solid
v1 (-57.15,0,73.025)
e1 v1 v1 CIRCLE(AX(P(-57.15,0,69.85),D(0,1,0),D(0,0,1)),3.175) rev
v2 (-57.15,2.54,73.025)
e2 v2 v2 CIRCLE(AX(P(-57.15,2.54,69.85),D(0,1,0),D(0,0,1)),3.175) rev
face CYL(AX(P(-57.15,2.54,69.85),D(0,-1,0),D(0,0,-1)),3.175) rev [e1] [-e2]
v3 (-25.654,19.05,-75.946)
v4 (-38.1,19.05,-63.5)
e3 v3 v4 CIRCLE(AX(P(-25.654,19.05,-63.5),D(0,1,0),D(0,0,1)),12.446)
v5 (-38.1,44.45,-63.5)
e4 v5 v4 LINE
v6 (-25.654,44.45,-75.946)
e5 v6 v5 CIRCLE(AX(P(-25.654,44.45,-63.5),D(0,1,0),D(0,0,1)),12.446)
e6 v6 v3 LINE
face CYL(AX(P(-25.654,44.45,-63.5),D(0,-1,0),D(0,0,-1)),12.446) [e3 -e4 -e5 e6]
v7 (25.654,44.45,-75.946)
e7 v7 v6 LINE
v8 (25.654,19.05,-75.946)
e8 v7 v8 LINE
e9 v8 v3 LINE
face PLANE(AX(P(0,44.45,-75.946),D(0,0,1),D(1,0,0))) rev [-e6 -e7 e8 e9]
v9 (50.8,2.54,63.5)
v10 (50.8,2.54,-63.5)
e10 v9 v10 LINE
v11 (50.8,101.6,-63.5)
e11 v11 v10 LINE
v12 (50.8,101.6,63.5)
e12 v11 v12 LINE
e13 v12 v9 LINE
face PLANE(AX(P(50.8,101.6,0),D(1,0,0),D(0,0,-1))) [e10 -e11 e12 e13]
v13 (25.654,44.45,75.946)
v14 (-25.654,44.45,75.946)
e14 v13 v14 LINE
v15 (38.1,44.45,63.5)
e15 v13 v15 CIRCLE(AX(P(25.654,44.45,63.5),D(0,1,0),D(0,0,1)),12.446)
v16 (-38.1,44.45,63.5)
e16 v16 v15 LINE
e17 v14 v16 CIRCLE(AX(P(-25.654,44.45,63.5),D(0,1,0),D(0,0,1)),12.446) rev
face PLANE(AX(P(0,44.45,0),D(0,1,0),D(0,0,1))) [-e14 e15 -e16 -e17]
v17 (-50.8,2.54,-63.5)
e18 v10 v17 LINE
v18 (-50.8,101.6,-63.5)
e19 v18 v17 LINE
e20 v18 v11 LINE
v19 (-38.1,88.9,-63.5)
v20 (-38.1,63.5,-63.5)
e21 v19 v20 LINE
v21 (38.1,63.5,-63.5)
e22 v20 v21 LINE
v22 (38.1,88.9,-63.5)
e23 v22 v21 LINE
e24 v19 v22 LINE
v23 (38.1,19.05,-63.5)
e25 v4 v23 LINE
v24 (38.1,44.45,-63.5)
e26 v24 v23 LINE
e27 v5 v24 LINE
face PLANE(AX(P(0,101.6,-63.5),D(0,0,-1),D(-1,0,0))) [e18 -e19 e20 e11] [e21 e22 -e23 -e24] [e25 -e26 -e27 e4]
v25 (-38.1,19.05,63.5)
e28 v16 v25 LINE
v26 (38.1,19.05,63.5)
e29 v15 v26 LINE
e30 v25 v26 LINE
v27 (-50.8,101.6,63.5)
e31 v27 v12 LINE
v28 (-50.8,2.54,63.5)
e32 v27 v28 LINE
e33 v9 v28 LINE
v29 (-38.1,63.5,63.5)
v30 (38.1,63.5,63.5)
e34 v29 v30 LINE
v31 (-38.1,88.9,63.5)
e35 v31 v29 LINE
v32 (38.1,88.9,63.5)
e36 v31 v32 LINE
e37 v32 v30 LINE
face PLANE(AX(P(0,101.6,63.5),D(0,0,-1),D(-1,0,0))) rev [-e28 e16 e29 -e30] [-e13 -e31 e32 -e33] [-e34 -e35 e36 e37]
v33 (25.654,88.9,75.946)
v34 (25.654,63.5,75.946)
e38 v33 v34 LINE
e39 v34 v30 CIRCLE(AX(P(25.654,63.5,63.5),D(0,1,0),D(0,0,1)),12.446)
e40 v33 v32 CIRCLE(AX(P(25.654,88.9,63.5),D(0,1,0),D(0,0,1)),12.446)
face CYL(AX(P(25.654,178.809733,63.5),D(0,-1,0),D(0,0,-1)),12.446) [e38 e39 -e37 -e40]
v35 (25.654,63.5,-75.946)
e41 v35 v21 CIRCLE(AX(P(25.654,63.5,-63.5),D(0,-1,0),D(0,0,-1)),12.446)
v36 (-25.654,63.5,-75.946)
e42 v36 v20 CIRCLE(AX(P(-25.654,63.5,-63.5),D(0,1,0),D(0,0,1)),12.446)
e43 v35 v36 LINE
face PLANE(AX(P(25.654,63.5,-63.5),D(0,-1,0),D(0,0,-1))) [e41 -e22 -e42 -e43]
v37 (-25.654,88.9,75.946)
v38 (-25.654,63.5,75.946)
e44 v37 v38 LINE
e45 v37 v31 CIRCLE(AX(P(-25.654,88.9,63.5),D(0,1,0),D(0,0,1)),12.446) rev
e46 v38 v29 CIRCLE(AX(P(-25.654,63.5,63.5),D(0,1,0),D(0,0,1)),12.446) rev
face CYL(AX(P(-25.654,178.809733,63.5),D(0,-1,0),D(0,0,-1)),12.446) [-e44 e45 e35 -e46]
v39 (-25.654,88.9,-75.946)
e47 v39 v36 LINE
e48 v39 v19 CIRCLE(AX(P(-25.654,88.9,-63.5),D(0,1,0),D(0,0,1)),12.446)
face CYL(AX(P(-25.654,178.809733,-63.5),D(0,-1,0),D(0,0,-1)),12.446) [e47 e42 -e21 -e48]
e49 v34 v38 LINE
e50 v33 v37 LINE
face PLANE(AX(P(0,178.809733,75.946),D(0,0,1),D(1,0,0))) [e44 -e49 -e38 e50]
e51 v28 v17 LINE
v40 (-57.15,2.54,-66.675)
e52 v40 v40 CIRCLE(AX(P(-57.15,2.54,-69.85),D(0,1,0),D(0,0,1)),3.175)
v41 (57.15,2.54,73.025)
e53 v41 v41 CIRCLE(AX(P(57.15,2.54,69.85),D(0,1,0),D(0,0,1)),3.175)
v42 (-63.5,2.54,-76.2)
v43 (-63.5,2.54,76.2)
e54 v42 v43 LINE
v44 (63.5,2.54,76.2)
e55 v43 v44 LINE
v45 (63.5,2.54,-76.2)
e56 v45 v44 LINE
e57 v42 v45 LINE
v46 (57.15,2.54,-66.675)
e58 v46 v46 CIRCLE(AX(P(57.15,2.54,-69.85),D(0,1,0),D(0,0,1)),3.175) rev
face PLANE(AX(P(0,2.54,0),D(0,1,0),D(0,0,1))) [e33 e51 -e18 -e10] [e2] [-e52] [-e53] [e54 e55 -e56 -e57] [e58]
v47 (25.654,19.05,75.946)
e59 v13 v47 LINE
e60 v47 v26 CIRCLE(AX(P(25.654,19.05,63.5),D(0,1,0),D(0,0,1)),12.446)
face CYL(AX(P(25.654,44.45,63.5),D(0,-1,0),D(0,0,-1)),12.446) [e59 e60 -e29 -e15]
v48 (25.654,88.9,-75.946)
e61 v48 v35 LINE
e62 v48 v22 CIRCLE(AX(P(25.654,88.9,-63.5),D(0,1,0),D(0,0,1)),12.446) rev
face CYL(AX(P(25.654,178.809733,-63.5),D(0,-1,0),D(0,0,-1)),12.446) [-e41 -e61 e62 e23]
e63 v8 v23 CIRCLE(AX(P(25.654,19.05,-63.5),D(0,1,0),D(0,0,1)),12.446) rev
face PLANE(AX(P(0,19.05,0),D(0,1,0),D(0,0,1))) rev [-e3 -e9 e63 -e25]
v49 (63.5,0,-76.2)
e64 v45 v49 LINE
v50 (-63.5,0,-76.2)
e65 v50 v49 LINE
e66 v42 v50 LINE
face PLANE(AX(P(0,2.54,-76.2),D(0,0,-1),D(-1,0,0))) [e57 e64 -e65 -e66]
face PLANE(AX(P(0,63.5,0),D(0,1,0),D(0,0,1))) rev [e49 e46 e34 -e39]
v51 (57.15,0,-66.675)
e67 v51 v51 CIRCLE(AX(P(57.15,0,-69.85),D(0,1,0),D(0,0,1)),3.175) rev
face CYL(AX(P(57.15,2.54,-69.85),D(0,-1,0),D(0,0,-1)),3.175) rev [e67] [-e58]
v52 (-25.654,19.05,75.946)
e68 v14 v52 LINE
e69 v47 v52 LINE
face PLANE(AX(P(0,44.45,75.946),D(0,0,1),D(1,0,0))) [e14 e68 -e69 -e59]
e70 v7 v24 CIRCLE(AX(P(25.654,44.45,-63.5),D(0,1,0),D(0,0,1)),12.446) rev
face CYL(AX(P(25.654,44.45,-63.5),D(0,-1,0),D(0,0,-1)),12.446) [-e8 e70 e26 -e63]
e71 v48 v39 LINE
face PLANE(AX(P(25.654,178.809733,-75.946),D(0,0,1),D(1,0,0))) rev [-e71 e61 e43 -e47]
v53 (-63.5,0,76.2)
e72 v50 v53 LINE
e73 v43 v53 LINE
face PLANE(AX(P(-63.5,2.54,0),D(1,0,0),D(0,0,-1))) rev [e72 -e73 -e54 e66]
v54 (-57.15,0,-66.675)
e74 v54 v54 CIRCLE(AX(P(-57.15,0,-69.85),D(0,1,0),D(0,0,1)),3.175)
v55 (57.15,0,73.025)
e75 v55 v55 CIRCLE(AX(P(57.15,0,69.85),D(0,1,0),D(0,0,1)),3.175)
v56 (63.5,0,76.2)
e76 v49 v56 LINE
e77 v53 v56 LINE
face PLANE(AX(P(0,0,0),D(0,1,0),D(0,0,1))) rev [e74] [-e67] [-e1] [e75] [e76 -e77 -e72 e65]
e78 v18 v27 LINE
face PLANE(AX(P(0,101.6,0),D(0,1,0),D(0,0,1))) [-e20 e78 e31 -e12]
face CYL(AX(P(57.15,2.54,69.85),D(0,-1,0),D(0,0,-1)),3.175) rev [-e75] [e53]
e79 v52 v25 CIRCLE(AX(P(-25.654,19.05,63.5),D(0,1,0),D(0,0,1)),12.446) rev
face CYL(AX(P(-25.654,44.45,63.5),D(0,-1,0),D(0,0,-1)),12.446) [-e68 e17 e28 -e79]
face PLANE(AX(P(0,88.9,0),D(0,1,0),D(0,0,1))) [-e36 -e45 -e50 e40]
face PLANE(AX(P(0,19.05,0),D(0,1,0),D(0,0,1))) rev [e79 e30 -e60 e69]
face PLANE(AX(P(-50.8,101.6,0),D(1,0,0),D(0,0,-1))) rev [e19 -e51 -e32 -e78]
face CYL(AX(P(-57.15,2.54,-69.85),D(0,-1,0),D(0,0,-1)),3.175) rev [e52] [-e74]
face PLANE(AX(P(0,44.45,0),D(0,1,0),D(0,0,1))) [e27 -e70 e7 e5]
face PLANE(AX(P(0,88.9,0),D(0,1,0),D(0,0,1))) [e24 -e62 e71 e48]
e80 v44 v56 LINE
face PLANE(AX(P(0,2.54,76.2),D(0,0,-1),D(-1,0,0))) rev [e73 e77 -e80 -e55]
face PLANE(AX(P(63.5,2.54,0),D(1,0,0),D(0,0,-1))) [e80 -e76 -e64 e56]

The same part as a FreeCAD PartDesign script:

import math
import FreeCAD as App
import Part
import Sketcher

V = App.Vector
Q = App.Units.Quantity


def add_polygon(sketch, points):
    """Adds a closed chain of lines whose ends are joined by coincident constraints."""
    first, n = sketch.GeometryCount, len(points)
    for a, b in zip(points, points[1:] + points[:1]):
        sketch.addGeometry(Part.LineSegment(App.Vector(*a, 0), App.Vector(*b, 0)), False)
    for i in range(n):
        sketch.addConstraint(Sketcher.Constraint("Coincident", first + i, 2, first + (i + 1) % n, 1))

doc = App.newDocument("Part")
body = doc.addObject("PartDesign::Body", "Body")

# Sketch on XZ plane
sketch1 = body.newObject("Sketcher::SketchObject", "Sketch")
sketch1.AttachmentSupport = (doc.getObject("XZ_Plane"), [""])
sketch1.MapMode = "FlatFace"
add_polygon(sketch1, [(-63.5, -76.2), (-63.5, 76.2), (63.5, 76.2), (63.5, -76.2)])  # lines 0-3
sketch1.addGeometry(Part.Circle(V(-57.1, 69.8, 0), V(0, 0, 1), 3.2), False)  # 4
sketch1.addGeometry(Part.Circle(V(57.1, 69.8, 0), V(0, 0, 1), 3.2), False)  # 5
sketch1.addGeometry(Part.Circle(V(-57.1, -69.8, 0), V(0, 0, 1), 3.2), False)  # 6
sketch1.addGeometry(Part.Circle(V(57.1, -69.8, 0), V(0, 0, 1), 3.2), False)  # 7
sketch1.addConstraint(Sketcher.Constraint("Vertical", 0))
sketch1.addConstraint(Sketcher.Constraint("Horizontal", 1))
sketch1.addConstraint(Sketcher.Constraint("Vertical", 2))
sketch1.addConstraint(Sketcher.Constraint("Horizontal", 3))
sketch1.addConstraint(Sketcher.Constraint("Equal", 4, 5))
sketch1.addConstraint(Sketcher.Constraint("Equal", 5, 6))
sketch1.addConstraint(Sketcher.Constraint("Equal", 6, 7))
sketch1.addConstraint(Sketcher.Constraint("Symmetric", 5, 3, 6, 3, -1, 1))
sketch1.addConstraint(Sketcher.Constraint("Symmetric", 4, 3, 7, 3, -1, 1))
sketch1.addConstraint(Sketcher.Constraint("Symmetric", 0, 2, 2, 2, -1, 1))
sketch1.addConstraint(Sketcher.Constraint("Symmetric", 4, 3, 5, 3, -2))
sketch1.addConstraint(Sketcher.Constraint("Diameter", 4, Q("0.25 in")))
sketch1.addConstraint(Sketcher.Constraint("DistanceX", 1, 1, 1, 2, Q("5 in")))
sketch1.addConstraint(Sketcher.Constraint("DistanceY", 0, 1, 0, 2, Q("6 in")))
sketch1.addConstraint(Sketcher.Constraint("DistanceX", 4, 3, 5, 3, Q("4.5 in")))
sketch1.addConstraint(Sketcher.Constraint("DistanceY", 6, 3, 4, 3, Q("5.5 in")))
pad1 = body.newObject("PartDesign::Pad", "Pad")
pad1.Profile = sketch1
pad1.Length = Q("0.1 in")
pad1.Reversed = True

# Sketch on XZ plane
sketch2 = body.newObject("Sketcher::SketchObject", "Sketch001")
sketch2.AttachmentSupport = (doc.getObject("XZ_Plane"), [""])
sketch2.MapMode = "FlatFace"
add_polygon(sketch2, [(-51, -64), (-51, 64), (51, 64), (51, -64)])  # lines 0-3
sketch2.addConstraint(Sketcher.Constraint("Vertical", 0))
sketch2.addConstraint(Sketcher.Constraint("Horizontal", 1))
sketch2.addConstraint(Sketcher.Constraint("Vertical", 2))
sketch2.addConstraint(Sketcher.Constraint("Horizontal", 3))
sketch2.addConstraint(Sketcher.Constraint("Symmetric", 0, 2, 2, 2, -1, 1))
sketch2.addConstraint(Sketcher.Constraint("DistanceX", 1, 1, 1, 2, Q("4 in")))
sketch2.addConstraint(Sketcher.Constraint("DistanceY", 0, 1, 0, 2, Q("5 in")))
pad2 = body.newObject("PartDesign::Pad", "Pad001")
pad2.Profile = sketch2
pad2.Length = Q("4 in")
pad2.Reversed = True

# Sketch on XZ plane
sketch3 = body.newObject("Sketcher::SketchObject", "Sketch002")
sketch3.AttachmentSupport = (doc.getObject("XZ_Plane"), [""])
sketch3.MapMode = "FlatFace"
sketch3.AttachmentOffset = App.Placement(V(0, 0, -2.5 * 25.4), App.Rotation())
sketch3.addGeometry(Part.LineSegment(V(38, 64, 0), V(-38, 64, 0)), False)
sketch3.addGeometry(Part.ArcOfCircle(Part.Circle(V(-26, 64, 0), V(0, 0, 1), 12), math.radians(90), math.radians(180)), False)
sketch3.addGeometry(Part.LineSegment(V(-26, 76, 0), V(26, 76, 0)), False)
sketch3.addGeometry(Part.ArcOfCircle(Part.Circle(V(26, 64, 0), V(0, 0, 1), 12), math.radians(0), math.radians(90)), False)
sketch3.addGeometry(Part.LineSegment(V(26, -76, 0), V(-26, -76, 0)), False)
sketch3.addGeometry(Part.ArcOfCircle(Part.Circle(V(-26, -64, 0), V(0, 0, 1), 12), math.radians(180), math.radians(270)), False)
sketch3.addGeometry(Part.LineSegment(V(-38, -64, 0), V(38, -64, 0)), False)
sketch3.addGeometry(Part.ArcOfCircle(Part.Circle(V(26, -64, 0), V(0, 0, 1), 12), math.radians(-90), math.radians(0)), False)
sketch3.addConstraint(Sketcher.Constraint("Coincident", 0, 2, 1, 2))
sketch3.addConstraint(Sketcher.Constraint("Tangent", 1, 1, 2, 1))
sketch3.addConstraint(Sketcher.Constraint("Tangent", 2, 2, 3, 2))
sketch3.addConstraint(Sketcher.Constraint("Coincident", 3, 1, 0, 1))
sketch3.addConstraint(Sketcher.Constraint("Tangent", 4, 2, 5, 2))
sketch3.addConstraint(Sketcher.Constraint("Coincident", 5, 1, 6, 1))
sketch3.addConstraint(Sketcher.Constraint("Coincident", 6, 2, 7, 2))
sketch3.addConstraint(Sketcher.Constraint("Tangent", 7, 1, 4, 1))
sketch3.addConstraint(Sketcher.Constraint("Horizontal", 0))
sketch3.addConstraint(Sketcher.Constraint("Horizontal", 2))
sketch3.addConstraint(Sketcher.Constraint("Horizontal", 4))
sketch3.addConstraint(Sketcher.Constraint("Horizontal", 6))
sketch3.addConstraint(Sketcher.Constraint("Equal", 1, 3))
sketch3.addConstraint(Sketcher.Constraint("Equal", 3, 5))
sketch3.addConstraint(Sketcher.Constraint("Equal", 5, 7))
sketch3.addConstraint(Sketcher.Constraint("Symmetric", 3, 3, 5, 3, -1, 1))
sketch3.addConstraint(Sketcher.Constraint("Symmetric", 0, 2, 6, 2, -1, 1))
sketch3.addConstraint(Sketcher.Constraint("Horizontal", 3, 3, 0, 2))
sketch3.addConstraint(Sketcher.Constraint("Vertical", 1, 3, 5, 3))
sketch3.addConstraint(Sketcher.Constraint("DistanceX", 0, 2, 0, 1, Q("3 in")))
sketch3.addConstraint(Sketcher.Constraint("Radius", 1, Q("0.49 in")))
sketch3.addConstraint(Sketcher.Constraint("DistanceY", 5, 3, 1, 3, Q("5 in")))
pad3 = body.newObject("PartDesign::Pad", "Pad002")
pad3.Profile = sketch3
pad3.Length = Q("1 in")
pad3.Reversed = True

# Sketch on XZ plane
sketch4 = body.newObject("Sketcher::SketchObject", "Sketch003")
sketch4.AttachmentSupport = (doc.getObject("XZ_Plane"), [""])
sketch4.MapMode = "FlatFace"
sketch4.AttachmentOffset = App.Placement(V(0, 0, -0.75 * 25.4), App.Rotation())
sketch4.addGeometry(Part.LineSegment(V(38, 64, 0), V(-38, 64, 0)), False)
sketch4.addGeometry(Part.ArcOfCircle(Part.Circle(V(-26, 64, 0), V(0, 0, 1), 12), math.radians(90), math.radians(180)), False)
sketch4.addGeometry(Part.LineSegment(V(-26, 76, 0), V(26, 76, 0)), False)
sketch4.addGeometry(Part.ArcOfCircle(Part.Circle(V(26, 64, 0), V(0, 0, 1), 12), math.radians(0), math.radians(90)), False)
sketch4.addGeometry(Part.ArcOfCircle(Part.Circle(V(-26, -64, 0), V(0, 0, 1), 12), math.radians(180), math.radians(270)), False)
sketch4.addGeometry(Part.LineSegment(V(-38, -64, 0), V(38, -64, 0)), False)
sketch4.addGeometry(Part.ArcOfCircle(Part.Circle(V(26, -64, 0), V(0, 0, 1), 12), math.radians(-90), math.radians(0)), False)
sketch4.addGeometry(Part.LineSegment(V(26, -76, 0), V(-26, -76, 0)), False)
sketch4.addConstraint(Sketcher.Constraint("Coincident", 0, 2, 1, 2))
sketch4.addConstraint(Sketcher.Constraint("Tangent", 1, 1, 2, 1))
sketch4.addConstraint(Sketcher.Constraint("Tangent", 2, 2, 3, 2))
sketch4.addConstraint(Sketcher.Constraint("Coincident", 3, 1, 0, 1))
sketch4.addConstraint(Sketcher.Constraint("Coincident", 4, 1, 5, 1))
sketch4.addConstraint(Sketcher.Constraint("Coincident", 5, 2, 6, 2))
sketch4.addConstraint(Sketcher.Constraint("Tangent", 6, 1, 7, 1))
sketch4.addConstraint(Sketcher.Constraint("Tangent", 7, 2, 4, 2))
sketch4.addConstraint(Sketcher.Constraint("Horizontal", 0))
sketch4.addConstraint(Sketcher.Constraint("Horizontal", 2))
sketch4.addConstraint(Sketcher.Constraint("Horizontal", 5))
sketch4.addConstraint(Sketcher.Constraint("Horizontal", 7))
sketch4.addConstraint(Sketcher.Constraint("Equal", 1, 3))
sketch4.addConstraint(Sketcher.Constraint("Equal", 3, 4))
sketch4.addConstraint(Sketcher.Constraint("Equal", 4, 6))
sketch4.addConstraint(Sketcher.Constraint("Symmetric", 3, 3, 4, 3, -1, 1))
sketch4.addConstraint(Sketcher.Constraint("Symmetric", 0, 2, 5, 2, -1, 1))
sketch4.addConstraint(Sketcher.Constraint("Horizontal", 3, 3, 0, 2))
sketch4.addConstraint(Sketcher.Constraint("Vertical", 1, 3, 4, 3))
sketch4.addConstraint(Sketcher.Constraint("DistanceX", 0, 2, 0, 1, Q("3 in")))
sketch4.addConstraint(Sketcher.Constraint("Radius", 1, Q("0.49 in")))
sketch4.addConstraint(Sketcher.Constraint("DistanceY", 4, 3, 1, 3, Q("5 in")))
pad4 = body.newObject("PartDesign::Pad", "Pad003")
pad4.Profile = sketch4
pad4.Length = Q("1 in")
pad4.Reversed = True

doc.recompute()
